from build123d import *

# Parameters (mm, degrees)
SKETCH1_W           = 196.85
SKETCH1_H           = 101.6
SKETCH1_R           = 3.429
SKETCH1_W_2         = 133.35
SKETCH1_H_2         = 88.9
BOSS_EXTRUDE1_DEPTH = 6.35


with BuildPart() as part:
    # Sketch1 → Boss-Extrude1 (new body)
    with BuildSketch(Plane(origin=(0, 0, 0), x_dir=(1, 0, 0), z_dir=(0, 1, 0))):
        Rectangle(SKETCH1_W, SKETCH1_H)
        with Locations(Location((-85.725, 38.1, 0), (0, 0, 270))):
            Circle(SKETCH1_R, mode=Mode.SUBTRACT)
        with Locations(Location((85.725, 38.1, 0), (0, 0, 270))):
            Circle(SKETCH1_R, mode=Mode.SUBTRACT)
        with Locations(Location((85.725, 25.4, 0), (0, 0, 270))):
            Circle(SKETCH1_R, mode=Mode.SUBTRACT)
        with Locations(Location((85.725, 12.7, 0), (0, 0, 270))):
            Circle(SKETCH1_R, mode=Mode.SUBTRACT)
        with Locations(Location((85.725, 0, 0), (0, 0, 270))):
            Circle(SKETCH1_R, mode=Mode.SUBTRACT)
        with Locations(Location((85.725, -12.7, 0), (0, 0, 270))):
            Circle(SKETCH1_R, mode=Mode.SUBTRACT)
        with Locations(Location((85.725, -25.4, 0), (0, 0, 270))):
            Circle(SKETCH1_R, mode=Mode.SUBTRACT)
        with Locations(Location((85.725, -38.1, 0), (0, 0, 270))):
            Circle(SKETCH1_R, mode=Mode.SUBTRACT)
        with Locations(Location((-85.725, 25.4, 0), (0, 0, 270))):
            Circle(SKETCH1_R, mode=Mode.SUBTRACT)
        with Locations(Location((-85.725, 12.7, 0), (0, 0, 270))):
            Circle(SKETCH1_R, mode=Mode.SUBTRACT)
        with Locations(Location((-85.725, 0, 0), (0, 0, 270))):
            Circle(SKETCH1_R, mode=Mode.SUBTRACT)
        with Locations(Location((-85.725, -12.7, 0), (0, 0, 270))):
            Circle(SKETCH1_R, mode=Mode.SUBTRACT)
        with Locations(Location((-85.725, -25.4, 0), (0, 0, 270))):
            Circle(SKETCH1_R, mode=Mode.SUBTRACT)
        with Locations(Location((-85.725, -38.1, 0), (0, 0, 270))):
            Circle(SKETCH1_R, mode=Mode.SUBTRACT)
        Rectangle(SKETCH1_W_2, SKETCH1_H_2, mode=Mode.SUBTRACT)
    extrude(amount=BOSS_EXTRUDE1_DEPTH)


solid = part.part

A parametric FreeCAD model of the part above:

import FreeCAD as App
import Part
import Sketcher

V = App.Vector
Q = App.Units.Quantity

doc = App.newDocument("Part")
body = doc.addObject("PartDesign::Body", "Body")

sketch1 = body.newObject("Sketcher::SketchObject", "Sketch")
sketch1.AttachmentSupport = (doc.getObject("XZ_Plane"), [""])
sketch1.MapMode = "FlatFace"
sketch1.addGeometry(Part.LineSegment(V(-98.425, -50.8, 0), V(-98.425, 50.8, 0)), False)
sketch1.addGeometry(Part.LineSegment(V(-98.425, 50.8, 0), V(98.425, 50.8, 0)), False)
sketch1.addGeometry(Part.LineSegment(V(98.425, 50.8, 0), V(98.425, -50.8, 0)), False)
sketch1.addGeometry(Part.LineSegment(V(98.425, -50.8, 0), V(-98.425, -50.8, 0)), False)
sketch1.addGeometry(Part.Circle(V(-85.725, 38.1, 0), V(0, 0, 1), 3.429), False)
sketch1.addGeometry(Part.Circle(V(-85.725, 25.4, 0), V(0, 0, 1), 3.429), False)
sketch1.addGeometry(Part.Circle(V(-85.725, 12.7, 0), V(0, 0, 1), 3.429), False)
sketch1.addGeometry(Part.Circle(V(85.725, 38.1, 0), V(0, 0, 1), 3.429), False)
sketch1.addGeometry(Part.Circle(V(85.725, 25.4, 0), V(0, 0, 1), 3.429), False)
sketch1.addGeometry(Part.Circle(V(85.725, 12.7, 0), V(0, 0, 1), 3.429), False)
sketch1.addGeometry(Part.Circle(V(-85.725, 0, 0), V(0, 0, 1), 3.429), False)
sketch1.addGeometry(Part.Circle(V(-85.725, -12.7, 0), V(0, 0, 1), 3.429), False)
sketch1.addGeometry(Part.Circle(V(-85.725, -25.4, 0), V(0, 0, 1), 3.429), False)
sketch1.addGeometry(Part.Circle(V(-85.725, -38.1, 0), V(0, 0, 1), 3.429), False)
sketch1.addGeometry(Part.LineSegment(V(66.675, 44.45, 0), V(-66.675, 44.45, 0)), False)
sketch1.addGeometry(Part.LineSegment(V(-66.675, 44.45, 0), V(-66.675, -44.45, 0)), False)
sketch1.addGeometry(Part.LineSegment(V(-66.675, -44.45, 0), V(66.675, -44.45, 0)), False)
sketch1.addGeometry(Part.LineSegment(V(66.675, -44.45, 0), V(66.675, 44.45, 0)), False)
sketch1.addGeometry(Part.Circle(V(85.725, 0, 0), V(0, 0, 1), 3.429), False)
sketch1.addGeometry(Part.Circle(V(85.725, -12.7, 0), V(0, 0, 1), 3.429), False)
sketch1.addGeometry(Part.Circle(V(85.725, -25.4, 0), V(0, 0, 1), 3.429), False)
sketch1.addGeometry(Part.Circle(V(85.725, -38.1, 0), V(0, 0, 1), 3.429), False)
sketch1.addConstraint(Sketcher.Constraint("Coincident", 0, 2, 1, 1))
sketch1.addConstraint(Sketcher.Constraint("Coincident", 1, 2, 2, 1))
sketch1.addConstraint(Sketcher.Constraint("Coincident", 2, 2, 3, 1))
sketch1.addConstraint(Sketcher.Constraint("Coincident", 3, 2, 0, 1))
sketch1.addConstraint(Sketcher.Constraint("Coincident", 14, 2, 15, 1))
sketch1.addConstraint(Sketcher.Constraint("Coincident", 15, 2, 16, 1))
sketch1.addConstraint(Sketcher.Constraint("Coincident", 16, 2, 17, 1))
sketch1.addConstraint(Sketcher.Constraint("Coincident", 17, 2, 14, 1))
sketch1.addConstraint(Sketcher.Constraint("Vertical", 0))
sketch1.addConstraint(Sketcher.Constraint("Horizontal", 1))
sketch1.addConstraint(Sketcher.Constraint("Vertical", 2))
sketch1.addConstraint(Sketcher.Constraint("Horizontal", 3))
sketch1.addConstraint(Sketcher.Constraint("Horizontal", 14))
sketch1.addConstraint(Sketcher.Constraint("Vertical", 15))
sketch1.addConstraint(Sketcher.Constraint("Horizontal", 16))
sketch1.addConstraint(Sketcher.Constraint("Vertical", 17))
sketch1.addConstraint(Sketcher.Constraint("Equal", 4, 5))
sketch1.addConstraint(Sketcher.Constraint("Equal", 5, 6))
sketch1.addConstraint(Sketcher.Constraint("Equal", 6, 7))
sketch1.addConstraint(Sketcher.Constraint("Equal", 7, 8))
sketch1.addConstraint(Sketcher.Constraint("Equal", 8, 9))
sketch1.addConstraint(Sketcher.Constraint("Equal", 9, 10))
sketch1.addConstraint(Sketcher.Constraint("Equal", 10, 11))
sketch1.addConstraint(Sketcher.Constraint("Equal", 11, 12))
sketch1.addConstraint(Sketcher.Constraint("Equal", 12, 13))
sketch1.addConstraint(Sketcher.Constraint("Equal", 13, 18))
sketch1.addConstraint(Sketcher.Constraint("Equal", 18, 19))
sketch1.addConstraint(Sketcher.Constraint("Equal", 19, 20))
sketch1.addConstraint(Sketcher.Constraint("Equal", 20, 21))
sketch1.addConstraint(Sketcher.Constraint("Symmetric", 9, 3, 11, 3, -1, 1))
sketch1.addConstraint(Sketcher.Constraint("Symmetric", 8, 3, 12, 3, -1, 1))
sketch1.addConstraint(Sketcher.Constraint("Symmetric", 7, 3, 13, 3, -1, 1))
sketch1.addConstraint(Sketcher.Constraint("Symmetric", 10, 3, 18, 3, -1, 1))
sketch1.addConstraint(Sketcher.Constraint("Symmetric", 6, 3, 19, 3, -1, 1))
sketch1.addConstraint(Sketcher.Constraint("Symmetric", 5, 3, 20, 3, -1, 1))
sketch1.addConstraint(Sketcher.Constraint("Symmetric", 4, 3, 21, 3, -1, 1))
sketch1.addConstraint(Sketcher.Constraint("Symmetric", 0, 2, 2, 2, -1, 1))
sketch1.addConstraint(Sketcher.Constraint("Symmetric", 14, 2, 16, 2, -1, 1))
sketch1.addConstraint(Sketcher.Constraint("Symmetric", 4, 3, 7, 3, -2))
sketch1.addConstraint(Sketcher.Constraint("Symmetric", 5, 3, 8, 3, -2))
sketch1.addConstraint(Sketcher.Constraint("Symmetric", 6, 3, 9, 3, -2))
sketch1.addConstraint(Sketcher.Constraint("PointOnObject", 10, 3, -1))
sketch1.addConstraint(Sketcher.Constraint("Vertical", 4, 3, 5, 3))
sketch1.addConstraint(Sketcher.Constraint("Vertical", 5, 3, 6, 3))
sketch1.addConstraint(Sketcher.Constraint("Vertical", 6, 3, 10, 3))
sketch1.addConstraint(Sketcher.Constraint("Diameter", 4, Q("0.27 in")))
sketch1.addConstraint(Sketcher.Constraint("DistanceY", 0, 1, 0, 2, Q("4 in")))
sketch1.addConstraint(Sketcher.Constraint("DistanceY", 15, 2, 15, 1, Q("3.5 in")))
sketch1.addConstraint(Sketcher.Constraint("DistanceY", -1, 1, 5, 3, Q("1 in")))
sketch1.addConstraint(Sketcher.Constraint("DistanceY", 6, 3, 4, 3, Q("1 in")))
sketch1.addConstraint(Sketcher.Constraint("DistanceY", 11, 3, 6, 3, Q("1 in")))
sketch1.addConstraint(Sketcher.Constraint("DistanceX", 1, 1, 1, 2, Q("7.75 in")))
sketch1.addConstraint(Sketcher.Constraint("DistanceX", 14, 2, 14, 1, Q("5.25 in")))
sketch1.addConstraint(Sketcher.Constraint("DistanceX", 0, 2, 4, 3, Q("0.5 in")))
pad1 = body.newObject("PartDesign::Pad", "Pad")
pad1.Profile = sketch1
pad1.Length = Q("0.25 in")
pad1.Reversed = True

doc.recompute()
